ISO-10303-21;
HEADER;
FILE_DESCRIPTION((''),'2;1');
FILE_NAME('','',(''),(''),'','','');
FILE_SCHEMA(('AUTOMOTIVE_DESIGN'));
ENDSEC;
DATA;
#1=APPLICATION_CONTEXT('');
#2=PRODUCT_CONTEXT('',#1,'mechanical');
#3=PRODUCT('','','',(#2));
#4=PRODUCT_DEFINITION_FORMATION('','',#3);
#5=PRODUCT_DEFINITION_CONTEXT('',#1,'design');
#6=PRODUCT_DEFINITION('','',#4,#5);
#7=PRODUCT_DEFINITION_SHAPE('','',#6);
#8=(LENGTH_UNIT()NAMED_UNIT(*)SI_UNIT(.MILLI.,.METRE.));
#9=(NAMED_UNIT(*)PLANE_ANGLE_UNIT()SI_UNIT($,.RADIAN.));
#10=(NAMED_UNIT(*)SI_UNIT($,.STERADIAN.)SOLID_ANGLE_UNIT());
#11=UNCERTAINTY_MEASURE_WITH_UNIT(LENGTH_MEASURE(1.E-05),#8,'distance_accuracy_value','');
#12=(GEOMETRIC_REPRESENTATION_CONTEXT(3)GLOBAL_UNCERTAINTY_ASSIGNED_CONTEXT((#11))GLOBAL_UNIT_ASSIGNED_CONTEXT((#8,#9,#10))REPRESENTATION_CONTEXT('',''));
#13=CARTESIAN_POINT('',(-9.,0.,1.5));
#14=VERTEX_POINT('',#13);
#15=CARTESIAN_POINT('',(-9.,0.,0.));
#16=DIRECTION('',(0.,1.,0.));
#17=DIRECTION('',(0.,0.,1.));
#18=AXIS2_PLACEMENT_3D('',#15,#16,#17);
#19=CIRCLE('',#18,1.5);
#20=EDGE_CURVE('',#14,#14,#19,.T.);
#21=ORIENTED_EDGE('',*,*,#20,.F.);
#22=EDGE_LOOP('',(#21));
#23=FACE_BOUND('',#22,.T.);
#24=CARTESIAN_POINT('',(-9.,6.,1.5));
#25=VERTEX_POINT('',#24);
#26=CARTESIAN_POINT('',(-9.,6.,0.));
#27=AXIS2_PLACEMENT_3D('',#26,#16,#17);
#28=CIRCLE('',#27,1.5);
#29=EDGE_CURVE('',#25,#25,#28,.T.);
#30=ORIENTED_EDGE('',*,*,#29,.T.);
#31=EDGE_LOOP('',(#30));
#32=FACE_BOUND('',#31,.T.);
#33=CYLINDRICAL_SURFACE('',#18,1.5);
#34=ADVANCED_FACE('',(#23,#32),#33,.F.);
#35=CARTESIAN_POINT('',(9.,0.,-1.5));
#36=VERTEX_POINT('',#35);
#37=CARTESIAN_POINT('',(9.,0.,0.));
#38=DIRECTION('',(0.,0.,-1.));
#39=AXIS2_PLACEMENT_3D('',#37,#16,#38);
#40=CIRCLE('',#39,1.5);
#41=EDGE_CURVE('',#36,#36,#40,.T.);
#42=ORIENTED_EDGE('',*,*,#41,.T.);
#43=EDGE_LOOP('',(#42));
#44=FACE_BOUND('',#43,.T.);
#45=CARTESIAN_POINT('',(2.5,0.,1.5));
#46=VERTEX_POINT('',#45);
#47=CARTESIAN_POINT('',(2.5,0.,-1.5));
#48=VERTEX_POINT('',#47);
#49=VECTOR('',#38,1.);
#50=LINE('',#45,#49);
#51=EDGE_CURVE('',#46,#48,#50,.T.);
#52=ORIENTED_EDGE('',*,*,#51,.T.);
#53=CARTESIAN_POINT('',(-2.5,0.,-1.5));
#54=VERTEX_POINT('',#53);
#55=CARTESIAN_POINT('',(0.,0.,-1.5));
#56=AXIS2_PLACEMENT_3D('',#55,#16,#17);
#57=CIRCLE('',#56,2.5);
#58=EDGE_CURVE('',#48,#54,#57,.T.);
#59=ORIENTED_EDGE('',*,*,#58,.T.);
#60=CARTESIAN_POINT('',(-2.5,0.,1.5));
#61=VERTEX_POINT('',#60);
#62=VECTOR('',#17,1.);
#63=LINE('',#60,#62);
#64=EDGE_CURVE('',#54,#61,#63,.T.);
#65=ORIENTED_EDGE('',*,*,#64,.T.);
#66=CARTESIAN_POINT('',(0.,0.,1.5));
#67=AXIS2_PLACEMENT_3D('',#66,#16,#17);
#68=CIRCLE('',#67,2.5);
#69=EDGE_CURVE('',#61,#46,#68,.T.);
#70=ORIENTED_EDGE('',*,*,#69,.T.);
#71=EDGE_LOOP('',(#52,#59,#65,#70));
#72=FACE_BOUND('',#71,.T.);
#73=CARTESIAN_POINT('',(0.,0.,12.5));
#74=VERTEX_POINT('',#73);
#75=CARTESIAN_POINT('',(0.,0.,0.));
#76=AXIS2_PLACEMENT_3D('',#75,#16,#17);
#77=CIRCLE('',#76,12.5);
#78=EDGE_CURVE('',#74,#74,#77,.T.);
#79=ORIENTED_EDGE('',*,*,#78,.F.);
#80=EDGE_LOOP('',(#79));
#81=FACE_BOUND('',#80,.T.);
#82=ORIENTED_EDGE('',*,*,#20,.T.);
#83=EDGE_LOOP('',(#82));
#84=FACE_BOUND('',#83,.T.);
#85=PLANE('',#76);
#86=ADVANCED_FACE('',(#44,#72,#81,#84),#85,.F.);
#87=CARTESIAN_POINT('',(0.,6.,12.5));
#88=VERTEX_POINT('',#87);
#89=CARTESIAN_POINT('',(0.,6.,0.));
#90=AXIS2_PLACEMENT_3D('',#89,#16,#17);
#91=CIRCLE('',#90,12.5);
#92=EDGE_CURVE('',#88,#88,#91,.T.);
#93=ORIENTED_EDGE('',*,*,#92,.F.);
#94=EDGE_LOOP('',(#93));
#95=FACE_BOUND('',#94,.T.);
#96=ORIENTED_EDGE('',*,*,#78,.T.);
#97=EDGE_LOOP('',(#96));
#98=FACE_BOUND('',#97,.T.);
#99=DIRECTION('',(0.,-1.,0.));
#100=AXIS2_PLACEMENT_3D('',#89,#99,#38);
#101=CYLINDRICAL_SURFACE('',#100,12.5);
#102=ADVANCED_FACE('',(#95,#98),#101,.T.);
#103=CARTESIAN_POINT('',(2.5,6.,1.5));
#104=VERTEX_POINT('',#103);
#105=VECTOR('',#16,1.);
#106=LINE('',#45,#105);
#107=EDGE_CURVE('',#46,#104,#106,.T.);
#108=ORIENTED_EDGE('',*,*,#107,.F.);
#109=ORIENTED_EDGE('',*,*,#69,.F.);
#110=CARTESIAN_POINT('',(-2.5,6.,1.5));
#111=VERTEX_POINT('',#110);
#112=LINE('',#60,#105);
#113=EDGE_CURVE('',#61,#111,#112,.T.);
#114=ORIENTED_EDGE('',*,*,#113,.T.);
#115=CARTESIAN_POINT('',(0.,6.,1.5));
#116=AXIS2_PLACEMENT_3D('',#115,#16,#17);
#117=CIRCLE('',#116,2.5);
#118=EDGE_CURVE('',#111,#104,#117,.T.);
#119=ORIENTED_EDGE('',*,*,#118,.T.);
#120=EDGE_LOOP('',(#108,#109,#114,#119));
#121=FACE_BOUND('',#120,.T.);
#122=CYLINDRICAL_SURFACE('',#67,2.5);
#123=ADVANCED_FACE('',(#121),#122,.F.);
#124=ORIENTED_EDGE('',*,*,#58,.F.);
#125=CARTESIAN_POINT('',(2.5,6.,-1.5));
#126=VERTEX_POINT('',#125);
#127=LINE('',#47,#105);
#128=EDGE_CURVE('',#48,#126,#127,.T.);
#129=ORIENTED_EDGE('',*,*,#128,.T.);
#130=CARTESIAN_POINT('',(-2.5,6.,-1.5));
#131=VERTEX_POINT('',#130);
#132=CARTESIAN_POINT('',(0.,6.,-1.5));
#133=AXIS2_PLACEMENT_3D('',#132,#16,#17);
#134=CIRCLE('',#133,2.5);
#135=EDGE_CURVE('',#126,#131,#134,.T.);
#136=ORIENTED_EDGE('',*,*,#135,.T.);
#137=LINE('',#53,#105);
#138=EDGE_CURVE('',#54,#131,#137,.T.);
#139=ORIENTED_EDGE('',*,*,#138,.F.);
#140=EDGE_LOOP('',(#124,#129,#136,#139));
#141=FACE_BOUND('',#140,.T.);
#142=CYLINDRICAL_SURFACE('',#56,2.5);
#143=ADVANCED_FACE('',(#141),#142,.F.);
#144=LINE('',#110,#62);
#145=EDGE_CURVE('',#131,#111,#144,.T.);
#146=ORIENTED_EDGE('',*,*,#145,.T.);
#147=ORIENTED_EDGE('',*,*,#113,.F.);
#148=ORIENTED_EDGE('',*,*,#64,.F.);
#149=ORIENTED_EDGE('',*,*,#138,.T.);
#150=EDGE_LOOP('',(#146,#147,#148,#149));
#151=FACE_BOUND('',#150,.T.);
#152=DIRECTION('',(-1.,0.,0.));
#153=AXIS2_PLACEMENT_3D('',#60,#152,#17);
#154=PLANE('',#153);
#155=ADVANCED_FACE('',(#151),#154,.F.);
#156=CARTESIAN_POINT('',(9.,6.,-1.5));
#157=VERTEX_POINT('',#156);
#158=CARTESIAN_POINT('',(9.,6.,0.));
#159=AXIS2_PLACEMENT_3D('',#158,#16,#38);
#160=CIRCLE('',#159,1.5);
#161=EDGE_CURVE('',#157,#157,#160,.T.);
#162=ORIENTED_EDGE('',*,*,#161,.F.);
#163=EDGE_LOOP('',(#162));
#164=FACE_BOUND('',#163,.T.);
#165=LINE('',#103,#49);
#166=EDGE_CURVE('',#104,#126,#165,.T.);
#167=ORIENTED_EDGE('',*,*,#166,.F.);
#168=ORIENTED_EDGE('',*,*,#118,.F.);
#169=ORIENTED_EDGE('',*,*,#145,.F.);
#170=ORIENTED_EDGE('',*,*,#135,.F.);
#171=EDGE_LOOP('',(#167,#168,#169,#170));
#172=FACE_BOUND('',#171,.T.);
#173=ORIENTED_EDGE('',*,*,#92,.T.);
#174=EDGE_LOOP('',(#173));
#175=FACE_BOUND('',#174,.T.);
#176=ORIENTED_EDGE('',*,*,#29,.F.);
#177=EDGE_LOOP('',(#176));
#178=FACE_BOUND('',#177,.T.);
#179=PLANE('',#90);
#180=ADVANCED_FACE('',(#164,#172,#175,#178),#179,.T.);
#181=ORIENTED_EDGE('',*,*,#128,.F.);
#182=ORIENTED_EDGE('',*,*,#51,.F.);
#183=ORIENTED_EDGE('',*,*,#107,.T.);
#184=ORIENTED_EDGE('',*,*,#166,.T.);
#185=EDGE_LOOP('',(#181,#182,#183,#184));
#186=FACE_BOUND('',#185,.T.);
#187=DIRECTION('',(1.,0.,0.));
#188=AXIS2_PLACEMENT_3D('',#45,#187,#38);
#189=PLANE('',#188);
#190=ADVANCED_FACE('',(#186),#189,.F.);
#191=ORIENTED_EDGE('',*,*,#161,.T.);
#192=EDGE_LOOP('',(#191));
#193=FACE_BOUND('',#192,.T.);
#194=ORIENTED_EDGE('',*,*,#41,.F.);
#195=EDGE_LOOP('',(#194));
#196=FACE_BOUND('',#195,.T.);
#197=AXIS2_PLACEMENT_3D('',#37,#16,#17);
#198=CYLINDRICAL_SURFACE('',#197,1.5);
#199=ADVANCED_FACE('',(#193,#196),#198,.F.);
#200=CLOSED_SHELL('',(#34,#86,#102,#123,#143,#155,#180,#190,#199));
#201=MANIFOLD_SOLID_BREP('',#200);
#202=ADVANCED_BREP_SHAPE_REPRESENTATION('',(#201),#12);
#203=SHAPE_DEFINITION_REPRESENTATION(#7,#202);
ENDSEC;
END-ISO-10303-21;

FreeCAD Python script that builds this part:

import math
import FreeCAD as App
import Part
import Sketcher
from FreeCAD import Vector

doc = App.newDocument("Part")
body = doc.addObject("PartDesign::Body", "Body")

sketch1 = doc.addObject("Sketcher::SketchObject", "Sketch")
body.addObject(sketch1)
sketch1.AttachmentSupport = (doc.XZ_Plane, [""])
sketch1.MapMode = "FlatFace"
sketch1.addGeometry(Part.Circle(Vector(0, 0, 0), Vector(0, 0, 1), 12.5), False)
sketch1.addConstraint(Sketcher.Constraint("Coincident", 0, 3, -1, 1))
sketch1.addConstraint(Sketcher.Constraint("Diameter", 0, 25.0))
pad1 = doc.addObject("PartDesign::Pad", "Pad")
body.addObject(pad1)
pad1.Profile = sketch1
pad1.Length = 6
pad1.Reversed = True

sketch2 = doc.addObject("Sketcher::SketchObject", "Sketch001")
body.addObject(sketch2)
sketch2.AttachmentSupport = (doc.XZ_Plane, [""])
sketch2.MapMode = "FlatFace"
sketch2.AttachmentOffset = App.Placement(Vector(0, 0, -6), App.Rotation())
sketch2.addGeometry(Part.LineSegment(Vector(-2.5, -1.5, 0), Vector(-2.5, 1.5, 0)), False)
sketch2.addGeometry(Part.ArcOfCircle(Part.Circle(Vector(0, 1.5, 0), Vector(0, 0, 1), 2.5), math.radians(0), math.radians(180)), False)
sketch2.addGeometry(Part.LineSegment(Vector(2.5, 1.5, 0), Vector(2.5, -1.5, 0)), False)
sketch2.addGeometry(Part.ArcOfCircle(Part.Circle(Vector(0, -1.5, 0), Vector(0, 0, 1), 2.5), math.radians(180), math.radians(360)), False)
sketch2.addConstraint(Sketcher.Constraint("Tangent", 0, 2, 1, 2))
sketch2.addConstraint(Sketcher.Constraint("Tangent", 1, 1, 2, 1))
sketch2.addConstraint(Sketcher.Constraint("Tangent", 2, 2, 3, 2))
sketch2.addConstraint(Sketcher.Constraint("Tangent", 3, 1, 0, 1))
sketch2.addConstraint(Sketcher.Constraint("Vertical", 0))
sketch2.addConstraint(Sketcher.Constraint("Vertical", 2))
sketch2.addConstraint(Sketcher.Constraint("Symmetric", 1, 3, 3, 3, -1, 1))
sketch2.addConstraint(Sketcher.Constraint("Radius", 1, 2.5))
sketch2.addConstraint(Sketcher.Constraint("DistanceY", 0, 1, 0, 2, 3.0))
pocket1 = doc.addObject("PartDesign::Pocket", "Pocket")
body.addObject(pocket1)
pocket1.Profile = sketch2
pocket1.Type = "ThroughAll"
pocket1.Reversed = True

sketch3 = doc.addObject("Sketcher::SketchObject", "Sketch002")
body.addObject(sketch3)
sketch3.AttachmentSupport = (doc.XZ_Plane, [""])
sketch3.MapMode = "FlatFace"
sketch3.AttachmentOffset = App.Placement(Vector(0, 0, -6), App.Rotation())
sketch3.addGeometry(Part.Circle(Vector(-9, 0, 0), Vector(0, 0, 1), 1.5), False)
sketch3.addGeometry(Part.Circle(Vector(9, 0, 0), Vector(0, 0, 1), 1.5), False)
sketch3.addConstraint(Sketcher.Constraint("Equal", 0, 1))
sketch3.addConstraint(Sketcher.Constraint("Symmetric", 0, 3, 1, 3, -1, 1))
sketch3.addConstraint(Sketcher.Constraint("PointOnObject", 0, 3, -1))
sketch3.addConstraint(Sketcher.Constraint("Diameter", 0, 3.0))
sketch3.addConstraint(Sketcher.Constraint("DistanceX", 0, 3, -1, 1, 9.0))
pocket2 = doc.addObject("PartDesign::Pocket", "Pocket001")
body.addObject(pocket2)
pocket2.Profile = sketch3
pocket2.Type = "ThroughAll"
pocket2.Reversed = True

doc.recompute()
